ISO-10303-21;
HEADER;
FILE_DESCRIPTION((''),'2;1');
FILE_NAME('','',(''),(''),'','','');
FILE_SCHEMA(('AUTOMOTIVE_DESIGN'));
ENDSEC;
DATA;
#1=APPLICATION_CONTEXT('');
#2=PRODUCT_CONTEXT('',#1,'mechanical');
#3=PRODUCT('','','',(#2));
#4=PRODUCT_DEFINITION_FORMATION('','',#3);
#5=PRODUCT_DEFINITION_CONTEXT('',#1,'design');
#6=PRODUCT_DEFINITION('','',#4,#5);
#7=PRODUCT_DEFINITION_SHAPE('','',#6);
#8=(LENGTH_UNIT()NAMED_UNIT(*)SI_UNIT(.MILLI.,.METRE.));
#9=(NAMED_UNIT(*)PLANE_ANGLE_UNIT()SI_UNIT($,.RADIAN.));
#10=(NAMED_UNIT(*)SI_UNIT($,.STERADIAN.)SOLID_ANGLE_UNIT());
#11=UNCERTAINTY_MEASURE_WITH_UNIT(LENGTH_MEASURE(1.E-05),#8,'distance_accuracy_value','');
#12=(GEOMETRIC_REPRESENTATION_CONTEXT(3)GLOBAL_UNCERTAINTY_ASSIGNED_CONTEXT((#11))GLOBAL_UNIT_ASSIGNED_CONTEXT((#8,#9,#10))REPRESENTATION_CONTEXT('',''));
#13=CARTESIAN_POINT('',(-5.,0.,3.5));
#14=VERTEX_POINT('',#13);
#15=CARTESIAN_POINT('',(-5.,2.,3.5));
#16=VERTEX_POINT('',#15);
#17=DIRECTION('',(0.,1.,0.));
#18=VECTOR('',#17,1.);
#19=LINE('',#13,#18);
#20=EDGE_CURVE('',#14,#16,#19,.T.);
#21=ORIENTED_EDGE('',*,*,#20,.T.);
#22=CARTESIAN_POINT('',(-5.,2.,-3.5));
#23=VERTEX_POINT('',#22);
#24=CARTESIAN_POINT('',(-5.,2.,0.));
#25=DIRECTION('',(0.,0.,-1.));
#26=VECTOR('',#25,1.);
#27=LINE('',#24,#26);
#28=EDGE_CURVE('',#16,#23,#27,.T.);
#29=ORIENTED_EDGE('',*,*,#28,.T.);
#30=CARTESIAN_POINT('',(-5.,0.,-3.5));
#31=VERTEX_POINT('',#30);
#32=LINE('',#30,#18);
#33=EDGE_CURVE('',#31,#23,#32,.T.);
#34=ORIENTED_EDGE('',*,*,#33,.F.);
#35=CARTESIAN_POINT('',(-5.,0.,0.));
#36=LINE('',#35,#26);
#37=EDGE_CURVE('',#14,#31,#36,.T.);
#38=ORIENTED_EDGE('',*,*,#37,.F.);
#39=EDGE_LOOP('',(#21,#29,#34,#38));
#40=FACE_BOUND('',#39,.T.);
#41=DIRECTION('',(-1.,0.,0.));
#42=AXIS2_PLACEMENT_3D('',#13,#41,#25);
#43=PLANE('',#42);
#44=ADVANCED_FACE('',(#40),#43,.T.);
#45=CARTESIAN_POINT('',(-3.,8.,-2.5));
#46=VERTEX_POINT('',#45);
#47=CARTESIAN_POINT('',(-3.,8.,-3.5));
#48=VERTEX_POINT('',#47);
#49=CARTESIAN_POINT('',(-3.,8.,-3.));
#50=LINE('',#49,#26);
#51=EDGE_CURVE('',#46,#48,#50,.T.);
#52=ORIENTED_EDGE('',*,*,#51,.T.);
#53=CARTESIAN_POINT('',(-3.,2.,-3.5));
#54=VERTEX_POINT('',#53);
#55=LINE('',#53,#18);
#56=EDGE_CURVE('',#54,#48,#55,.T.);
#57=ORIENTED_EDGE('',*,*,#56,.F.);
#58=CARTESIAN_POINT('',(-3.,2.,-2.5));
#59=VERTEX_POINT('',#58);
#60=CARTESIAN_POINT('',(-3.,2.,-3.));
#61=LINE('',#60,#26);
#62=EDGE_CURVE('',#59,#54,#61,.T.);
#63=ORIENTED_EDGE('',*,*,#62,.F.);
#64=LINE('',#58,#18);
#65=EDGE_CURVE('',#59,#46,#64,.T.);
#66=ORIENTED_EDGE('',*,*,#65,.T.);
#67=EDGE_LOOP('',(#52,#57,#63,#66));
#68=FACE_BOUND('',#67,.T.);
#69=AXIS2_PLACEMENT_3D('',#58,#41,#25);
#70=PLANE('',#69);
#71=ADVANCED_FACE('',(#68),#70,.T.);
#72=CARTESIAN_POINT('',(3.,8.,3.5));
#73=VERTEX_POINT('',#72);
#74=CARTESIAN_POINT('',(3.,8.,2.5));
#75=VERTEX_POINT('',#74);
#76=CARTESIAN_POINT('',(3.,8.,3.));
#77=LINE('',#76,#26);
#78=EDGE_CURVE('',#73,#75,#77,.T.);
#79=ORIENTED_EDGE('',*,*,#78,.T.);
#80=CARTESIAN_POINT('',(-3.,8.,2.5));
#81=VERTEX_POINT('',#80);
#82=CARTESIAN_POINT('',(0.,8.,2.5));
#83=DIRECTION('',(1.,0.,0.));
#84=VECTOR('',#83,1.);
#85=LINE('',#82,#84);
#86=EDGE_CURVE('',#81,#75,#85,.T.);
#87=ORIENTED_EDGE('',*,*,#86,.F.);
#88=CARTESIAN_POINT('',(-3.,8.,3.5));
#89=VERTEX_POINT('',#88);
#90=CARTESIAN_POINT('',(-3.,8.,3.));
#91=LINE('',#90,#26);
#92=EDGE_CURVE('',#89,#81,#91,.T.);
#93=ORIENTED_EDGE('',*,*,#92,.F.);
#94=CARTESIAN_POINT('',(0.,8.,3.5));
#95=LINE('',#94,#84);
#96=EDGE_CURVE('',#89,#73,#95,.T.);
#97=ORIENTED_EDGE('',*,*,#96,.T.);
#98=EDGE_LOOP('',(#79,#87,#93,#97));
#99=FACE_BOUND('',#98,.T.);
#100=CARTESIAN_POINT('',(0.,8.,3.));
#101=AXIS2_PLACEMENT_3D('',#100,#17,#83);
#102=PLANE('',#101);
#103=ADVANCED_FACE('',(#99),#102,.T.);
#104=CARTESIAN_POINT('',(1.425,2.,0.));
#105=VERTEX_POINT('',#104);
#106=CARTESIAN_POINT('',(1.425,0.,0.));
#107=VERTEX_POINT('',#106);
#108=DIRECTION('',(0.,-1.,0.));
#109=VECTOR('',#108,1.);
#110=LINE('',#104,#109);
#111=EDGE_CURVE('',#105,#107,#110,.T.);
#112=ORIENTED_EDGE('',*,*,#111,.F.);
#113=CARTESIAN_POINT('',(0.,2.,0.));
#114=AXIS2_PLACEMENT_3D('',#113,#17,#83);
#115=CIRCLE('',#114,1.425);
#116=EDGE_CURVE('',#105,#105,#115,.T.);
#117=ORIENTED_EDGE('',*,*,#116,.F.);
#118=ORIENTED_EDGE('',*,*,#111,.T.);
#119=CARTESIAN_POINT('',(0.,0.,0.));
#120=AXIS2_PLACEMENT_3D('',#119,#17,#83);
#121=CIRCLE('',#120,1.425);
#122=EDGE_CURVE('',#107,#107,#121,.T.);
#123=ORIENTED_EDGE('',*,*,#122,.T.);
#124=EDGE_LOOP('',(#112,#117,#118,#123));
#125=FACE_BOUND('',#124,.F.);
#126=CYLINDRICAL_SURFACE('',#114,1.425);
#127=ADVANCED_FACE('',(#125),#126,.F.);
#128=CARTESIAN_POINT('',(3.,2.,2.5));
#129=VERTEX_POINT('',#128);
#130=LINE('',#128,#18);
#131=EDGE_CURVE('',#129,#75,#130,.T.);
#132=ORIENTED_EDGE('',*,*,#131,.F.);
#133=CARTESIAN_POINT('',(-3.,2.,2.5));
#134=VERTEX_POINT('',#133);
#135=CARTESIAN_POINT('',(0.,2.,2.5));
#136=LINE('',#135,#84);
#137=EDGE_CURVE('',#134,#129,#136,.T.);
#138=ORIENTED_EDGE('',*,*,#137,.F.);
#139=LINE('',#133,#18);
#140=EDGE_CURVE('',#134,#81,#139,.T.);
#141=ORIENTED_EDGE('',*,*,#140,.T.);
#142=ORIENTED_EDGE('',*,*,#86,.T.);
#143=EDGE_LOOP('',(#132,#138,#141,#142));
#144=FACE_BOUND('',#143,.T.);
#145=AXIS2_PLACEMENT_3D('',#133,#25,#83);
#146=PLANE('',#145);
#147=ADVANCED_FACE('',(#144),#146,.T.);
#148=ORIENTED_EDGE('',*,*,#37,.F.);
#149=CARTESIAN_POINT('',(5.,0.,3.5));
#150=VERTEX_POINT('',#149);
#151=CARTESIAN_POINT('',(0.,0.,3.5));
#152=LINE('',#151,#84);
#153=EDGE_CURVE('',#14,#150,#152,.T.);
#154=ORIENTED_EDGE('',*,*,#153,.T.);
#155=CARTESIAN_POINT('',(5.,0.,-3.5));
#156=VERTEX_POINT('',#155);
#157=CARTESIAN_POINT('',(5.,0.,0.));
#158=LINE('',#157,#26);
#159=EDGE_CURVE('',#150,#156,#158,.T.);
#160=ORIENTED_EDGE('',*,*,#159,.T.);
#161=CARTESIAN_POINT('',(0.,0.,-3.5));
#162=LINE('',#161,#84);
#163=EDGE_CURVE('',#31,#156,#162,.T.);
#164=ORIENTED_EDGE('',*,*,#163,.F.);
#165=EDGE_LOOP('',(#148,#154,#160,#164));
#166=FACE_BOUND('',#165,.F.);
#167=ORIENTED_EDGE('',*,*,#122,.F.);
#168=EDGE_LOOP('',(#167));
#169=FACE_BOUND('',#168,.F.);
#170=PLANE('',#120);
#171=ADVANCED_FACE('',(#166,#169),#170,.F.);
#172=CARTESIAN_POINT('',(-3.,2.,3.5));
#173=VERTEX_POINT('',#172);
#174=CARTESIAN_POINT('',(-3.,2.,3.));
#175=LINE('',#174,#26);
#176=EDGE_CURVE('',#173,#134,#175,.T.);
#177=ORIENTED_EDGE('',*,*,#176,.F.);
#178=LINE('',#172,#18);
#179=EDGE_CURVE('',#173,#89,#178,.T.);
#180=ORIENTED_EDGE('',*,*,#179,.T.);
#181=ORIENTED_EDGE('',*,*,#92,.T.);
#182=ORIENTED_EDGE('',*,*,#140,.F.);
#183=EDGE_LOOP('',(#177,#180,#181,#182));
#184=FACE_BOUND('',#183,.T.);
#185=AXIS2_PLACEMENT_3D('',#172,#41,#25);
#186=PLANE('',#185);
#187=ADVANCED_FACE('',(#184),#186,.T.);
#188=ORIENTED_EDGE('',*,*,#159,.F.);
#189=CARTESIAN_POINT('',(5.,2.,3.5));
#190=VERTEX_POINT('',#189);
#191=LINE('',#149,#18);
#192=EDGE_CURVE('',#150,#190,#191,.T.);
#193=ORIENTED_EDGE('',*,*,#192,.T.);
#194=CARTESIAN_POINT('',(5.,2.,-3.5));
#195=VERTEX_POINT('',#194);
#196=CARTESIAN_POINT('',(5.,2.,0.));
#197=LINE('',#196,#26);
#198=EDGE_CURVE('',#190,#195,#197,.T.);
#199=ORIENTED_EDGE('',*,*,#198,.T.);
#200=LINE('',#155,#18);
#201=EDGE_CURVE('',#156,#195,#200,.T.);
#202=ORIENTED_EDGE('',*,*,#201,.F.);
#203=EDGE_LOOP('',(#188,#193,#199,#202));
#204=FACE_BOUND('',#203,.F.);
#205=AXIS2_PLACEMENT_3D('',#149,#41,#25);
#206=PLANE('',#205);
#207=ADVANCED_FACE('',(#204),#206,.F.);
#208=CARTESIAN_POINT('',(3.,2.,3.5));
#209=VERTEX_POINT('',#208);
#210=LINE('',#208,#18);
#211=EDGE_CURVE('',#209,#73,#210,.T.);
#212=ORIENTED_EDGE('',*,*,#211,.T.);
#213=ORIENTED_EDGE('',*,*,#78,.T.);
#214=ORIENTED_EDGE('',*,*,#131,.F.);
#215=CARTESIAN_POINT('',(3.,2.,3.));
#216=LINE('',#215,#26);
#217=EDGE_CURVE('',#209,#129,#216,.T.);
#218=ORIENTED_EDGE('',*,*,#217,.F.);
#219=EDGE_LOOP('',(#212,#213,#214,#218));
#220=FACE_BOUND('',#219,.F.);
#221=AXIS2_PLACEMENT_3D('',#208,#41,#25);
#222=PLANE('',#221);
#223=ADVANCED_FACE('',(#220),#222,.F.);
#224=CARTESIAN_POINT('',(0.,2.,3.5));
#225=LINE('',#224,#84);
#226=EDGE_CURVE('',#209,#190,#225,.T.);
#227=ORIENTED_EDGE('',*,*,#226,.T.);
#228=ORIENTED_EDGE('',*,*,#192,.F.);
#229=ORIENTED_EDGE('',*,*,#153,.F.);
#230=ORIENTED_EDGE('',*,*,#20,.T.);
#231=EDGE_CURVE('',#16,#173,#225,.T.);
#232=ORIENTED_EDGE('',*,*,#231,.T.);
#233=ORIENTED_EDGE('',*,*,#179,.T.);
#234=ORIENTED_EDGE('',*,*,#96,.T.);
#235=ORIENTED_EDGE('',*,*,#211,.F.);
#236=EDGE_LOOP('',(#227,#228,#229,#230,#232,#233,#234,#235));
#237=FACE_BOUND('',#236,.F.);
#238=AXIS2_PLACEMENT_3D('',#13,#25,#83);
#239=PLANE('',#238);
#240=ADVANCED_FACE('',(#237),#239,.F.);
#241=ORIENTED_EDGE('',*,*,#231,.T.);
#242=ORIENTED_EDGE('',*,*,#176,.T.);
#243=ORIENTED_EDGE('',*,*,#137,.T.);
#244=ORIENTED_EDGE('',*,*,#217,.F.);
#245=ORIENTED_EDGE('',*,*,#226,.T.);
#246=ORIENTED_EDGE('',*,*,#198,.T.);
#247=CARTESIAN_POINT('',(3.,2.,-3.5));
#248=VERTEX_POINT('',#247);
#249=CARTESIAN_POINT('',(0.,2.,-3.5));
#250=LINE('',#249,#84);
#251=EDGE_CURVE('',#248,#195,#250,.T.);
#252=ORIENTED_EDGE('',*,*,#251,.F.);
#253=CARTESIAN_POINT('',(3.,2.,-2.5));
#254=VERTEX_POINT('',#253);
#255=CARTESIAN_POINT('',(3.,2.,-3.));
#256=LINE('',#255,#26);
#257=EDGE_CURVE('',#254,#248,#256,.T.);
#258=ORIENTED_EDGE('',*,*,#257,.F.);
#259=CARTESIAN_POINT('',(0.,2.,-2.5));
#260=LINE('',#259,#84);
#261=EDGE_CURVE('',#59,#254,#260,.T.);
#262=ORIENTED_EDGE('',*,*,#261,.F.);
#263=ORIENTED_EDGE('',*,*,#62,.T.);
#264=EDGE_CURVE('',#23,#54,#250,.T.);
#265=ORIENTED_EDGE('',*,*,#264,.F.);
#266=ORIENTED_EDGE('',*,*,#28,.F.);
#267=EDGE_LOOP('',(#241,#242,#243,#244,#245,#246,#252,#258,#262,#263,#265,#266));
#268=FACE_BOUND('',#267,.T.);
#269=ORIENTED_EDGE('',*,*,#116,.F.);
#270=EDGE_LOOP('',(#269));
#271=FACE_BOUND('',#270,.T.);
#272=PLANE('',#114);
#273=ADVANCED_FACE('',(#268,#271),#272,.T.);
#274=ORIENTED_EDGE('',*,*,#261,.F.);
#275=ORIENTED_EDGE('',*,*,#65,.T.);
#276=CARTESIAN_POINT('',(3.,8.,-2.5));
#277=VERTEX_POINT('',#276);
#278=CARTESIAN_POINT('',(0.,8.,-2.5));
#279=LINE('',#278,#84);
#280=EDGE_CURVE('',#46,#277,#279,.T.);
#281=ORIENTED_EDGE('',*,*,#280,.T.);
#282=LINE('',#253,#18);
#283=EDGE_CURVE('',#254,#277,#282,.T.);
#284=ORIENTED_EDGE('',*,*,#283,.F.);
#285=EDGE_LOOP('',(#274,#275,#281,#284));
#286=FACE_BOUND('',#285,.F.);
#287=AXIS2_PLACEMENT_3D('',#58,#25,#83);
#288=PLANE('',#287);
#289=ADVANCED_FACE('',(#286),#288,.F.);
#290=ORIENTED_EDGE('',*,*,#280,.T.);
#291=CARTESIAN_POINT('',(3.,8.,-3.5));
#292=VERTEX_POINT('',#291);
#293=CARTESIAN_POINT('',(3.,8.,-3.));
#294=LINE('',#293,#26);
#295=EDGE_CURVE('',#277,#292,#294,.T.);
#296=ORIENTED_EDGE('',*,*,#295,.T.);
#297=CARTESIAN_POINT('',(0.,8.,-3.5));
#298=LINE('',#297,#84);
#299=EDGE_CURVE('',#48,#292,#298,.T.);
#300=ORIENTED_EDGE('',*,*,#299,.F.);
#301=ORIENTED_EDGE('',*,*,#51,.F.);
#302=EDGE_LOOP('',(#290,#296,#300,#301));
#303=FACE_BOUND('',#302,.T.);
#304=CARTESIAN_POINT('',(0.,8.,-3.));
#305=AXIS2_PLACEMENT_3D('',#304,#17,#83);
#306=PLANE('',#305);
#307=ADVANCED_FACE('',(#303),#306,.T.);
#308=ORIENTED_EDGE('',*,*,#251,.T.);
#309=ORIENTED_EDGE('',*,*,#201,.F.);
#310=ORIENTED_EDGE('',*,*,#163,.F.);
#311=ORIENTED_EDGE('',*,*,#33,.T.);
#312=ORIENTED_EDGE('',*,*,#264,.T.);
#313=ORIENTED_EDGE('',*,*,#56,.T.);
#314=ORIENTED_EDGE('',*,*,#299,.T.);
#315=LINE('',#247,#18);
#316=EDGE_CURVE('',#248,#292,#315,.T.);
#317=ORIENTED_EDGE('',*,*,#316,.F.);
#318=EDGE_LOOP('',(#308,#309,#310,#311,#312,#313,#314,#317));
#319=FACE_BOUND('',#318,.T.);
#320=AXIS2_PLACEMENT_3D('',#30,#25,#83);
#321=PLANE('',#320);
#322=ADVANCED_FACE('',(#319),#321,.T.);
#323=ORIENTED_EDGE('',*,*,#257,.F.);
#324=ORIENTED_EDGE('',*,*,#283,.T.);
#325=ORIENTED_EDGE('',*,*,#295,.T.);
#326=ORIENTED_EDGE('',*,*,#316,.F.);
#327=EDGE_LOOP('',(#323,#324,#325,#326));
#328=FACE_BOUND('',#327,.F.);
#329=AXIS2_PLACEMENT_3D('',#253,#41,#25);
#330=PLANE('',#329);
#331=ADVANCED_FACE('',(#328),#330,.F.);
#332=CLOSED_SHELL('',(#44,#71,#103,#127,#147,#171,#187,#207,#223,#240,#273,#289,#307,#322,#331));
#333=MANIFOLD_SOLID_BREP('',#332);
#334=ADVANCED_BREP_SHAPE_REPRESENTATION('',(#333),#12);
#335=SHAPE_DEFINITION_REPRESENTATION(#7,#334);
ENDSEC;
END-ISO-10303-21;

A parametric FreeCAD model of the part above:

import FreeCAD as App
import Part
import Sketcher

V = App.Vector
Q = App.Units.Quantity


def add_polygon(sketch, points):
    """Adds a closed chain of lines whose ends are joined by coincident constraints."""
    first, n = sketch.GeometryCount, len(points)
    for a, b in zip(points, points[1:] + points[:1]):
        sketch.addGeometry(Part.LineSegment(App.Vector(*a, 0), App.Vector(*b, 0)), False)
    for i in range(n):
        sketch.addConstraint(Sketcher.Constraint("Coincident", first + i, 2, first + (i + 1) % n, 1))

doc = App.newDocument("Part")
body = doc.addObject("PartDesign::Body", "Body")

sketch1 = doc.addObject("Sketcher::SketchObject", "Sketch")
body.addObject(sketch1)
sketch1.AttachmentSupport = (doc.XZ_Plane, [""])
sketch1.MapMode = "FlatFace"
add_polygon(sketch1, [(-5, -4), (-5, 4), (5, 4), (5, -4)])
sketch1.addConstraint([
    Sketcher.Constraint("Vertical", 0),
    Sketcher.Constraint("Horizontal", 1),
    Sketcher.Constraint("Vertical", 2),
    Sketcher.Constraint("Horizontal", 3),
    Sketcher.Constraint("Symmetric", 0, 2, 2, 2, -1, 1),
    Sketcher.Constraint("DistanceX", 1, 1, 1, 2, Q("10 mm")),
    Sketcher.Constraint("DistanceY", 0, 1, 0, 2, Q("7 mm")),
])
pad1 = doc.addObject("PartDesign::Pad", "Pad")
body.addObject(pad1)
pad1.Profile = sketch1
pad1.Length = 2
pad1.Reversed = True

sketch2 = doc.addObject("Sketcher::SketchObject", "Sketch001")
body.addObject(sketch2)
sketch2.AttachmentSupport = (doc.XZ_Plane, [""])
sketch2.MapMode = "FlatFace"
sketch2.AttachmentOffset = App.Placement(V(0, 0, -2), App.Rotation())
sketch2.addGeometry(Part.Circle(V(0, 0, 0), V(0, 0, 1), 1.4), False)
sketch2.addConstraint([
    Sketcher.Constraint("Coincident", 0, 3, -1, 1),
    Sketcher.Constraint("Diameter", 0, Q("2.85 mm")),
])
pocket1 = doc.addObject("PartDesign::Pocket", "Pocket")
body.addObject(pocket1)
pocket1.Profile = sketch2
pocket1.Length = 2
pocket1.Reversed = True

sketch3 = doc.addObject("Sketcher::SketchObject", "Sketch002")
body.addObject(sketch3)
sketch3.AttachmentSupport = (doc.XZ_Plane, [""])
sketch3.MapMode = "FlatFace"
sketch3.AttachmentOffset = App.Placement(V(0, 0, -2), App.Rotation())
add_polygon(sketch3, [(-3, -3.5), (-3, -2.5), (3, -2.5), (3, -3.5)])
add_polygon(sketch3, [(-3, 2.5), (-3, 3.5), (3, 3.5), (3, 2.5)])
sketch3.addConstraint([
    Sketcher.Constraint("Vertical", 0),
    Sketcher.Constraint("Horizontal", 1),
    Sketcher.Constraint("Vertical", 2),
    Sketcher.Constraint("Horizontal", 3),
    Sketcher.Constraint("Vertical", 4),
    Sketcher.Constraint("Horizontal", 5),
    Sketcher.Constraint("Vertical", 6),
    Sketcher.Constraint("Horizontal", 7),
    Sketcher.Constraint("Symmetric", 2, 2, 4, 2, -1, 1),
    Sketcher.Constraint("Symmetric", 0, 2, 6, 2, -1, 1),
    Sketcher.Constraint("Vertical", 3, 2, 4, 2),
    Sketcher.Constraint("DistanceX", 1, 1, 1, 2, Q("6 mm")),
    Sketcher.Constraint("DistanceY", 0, 1, 0, 2, Q("1 mm")),
    Sketcher.Constraint("DistanceY", 0, 2, 4, 2, Q("6 mm")),
])
pad2 = doc.addObject("PartDesign::Pad", "Pad001")
body.addObject(pad2)
pad2.Profile = sketch3
pad2.Length = 6
pad2.Reversed = True

doc.recompute()
